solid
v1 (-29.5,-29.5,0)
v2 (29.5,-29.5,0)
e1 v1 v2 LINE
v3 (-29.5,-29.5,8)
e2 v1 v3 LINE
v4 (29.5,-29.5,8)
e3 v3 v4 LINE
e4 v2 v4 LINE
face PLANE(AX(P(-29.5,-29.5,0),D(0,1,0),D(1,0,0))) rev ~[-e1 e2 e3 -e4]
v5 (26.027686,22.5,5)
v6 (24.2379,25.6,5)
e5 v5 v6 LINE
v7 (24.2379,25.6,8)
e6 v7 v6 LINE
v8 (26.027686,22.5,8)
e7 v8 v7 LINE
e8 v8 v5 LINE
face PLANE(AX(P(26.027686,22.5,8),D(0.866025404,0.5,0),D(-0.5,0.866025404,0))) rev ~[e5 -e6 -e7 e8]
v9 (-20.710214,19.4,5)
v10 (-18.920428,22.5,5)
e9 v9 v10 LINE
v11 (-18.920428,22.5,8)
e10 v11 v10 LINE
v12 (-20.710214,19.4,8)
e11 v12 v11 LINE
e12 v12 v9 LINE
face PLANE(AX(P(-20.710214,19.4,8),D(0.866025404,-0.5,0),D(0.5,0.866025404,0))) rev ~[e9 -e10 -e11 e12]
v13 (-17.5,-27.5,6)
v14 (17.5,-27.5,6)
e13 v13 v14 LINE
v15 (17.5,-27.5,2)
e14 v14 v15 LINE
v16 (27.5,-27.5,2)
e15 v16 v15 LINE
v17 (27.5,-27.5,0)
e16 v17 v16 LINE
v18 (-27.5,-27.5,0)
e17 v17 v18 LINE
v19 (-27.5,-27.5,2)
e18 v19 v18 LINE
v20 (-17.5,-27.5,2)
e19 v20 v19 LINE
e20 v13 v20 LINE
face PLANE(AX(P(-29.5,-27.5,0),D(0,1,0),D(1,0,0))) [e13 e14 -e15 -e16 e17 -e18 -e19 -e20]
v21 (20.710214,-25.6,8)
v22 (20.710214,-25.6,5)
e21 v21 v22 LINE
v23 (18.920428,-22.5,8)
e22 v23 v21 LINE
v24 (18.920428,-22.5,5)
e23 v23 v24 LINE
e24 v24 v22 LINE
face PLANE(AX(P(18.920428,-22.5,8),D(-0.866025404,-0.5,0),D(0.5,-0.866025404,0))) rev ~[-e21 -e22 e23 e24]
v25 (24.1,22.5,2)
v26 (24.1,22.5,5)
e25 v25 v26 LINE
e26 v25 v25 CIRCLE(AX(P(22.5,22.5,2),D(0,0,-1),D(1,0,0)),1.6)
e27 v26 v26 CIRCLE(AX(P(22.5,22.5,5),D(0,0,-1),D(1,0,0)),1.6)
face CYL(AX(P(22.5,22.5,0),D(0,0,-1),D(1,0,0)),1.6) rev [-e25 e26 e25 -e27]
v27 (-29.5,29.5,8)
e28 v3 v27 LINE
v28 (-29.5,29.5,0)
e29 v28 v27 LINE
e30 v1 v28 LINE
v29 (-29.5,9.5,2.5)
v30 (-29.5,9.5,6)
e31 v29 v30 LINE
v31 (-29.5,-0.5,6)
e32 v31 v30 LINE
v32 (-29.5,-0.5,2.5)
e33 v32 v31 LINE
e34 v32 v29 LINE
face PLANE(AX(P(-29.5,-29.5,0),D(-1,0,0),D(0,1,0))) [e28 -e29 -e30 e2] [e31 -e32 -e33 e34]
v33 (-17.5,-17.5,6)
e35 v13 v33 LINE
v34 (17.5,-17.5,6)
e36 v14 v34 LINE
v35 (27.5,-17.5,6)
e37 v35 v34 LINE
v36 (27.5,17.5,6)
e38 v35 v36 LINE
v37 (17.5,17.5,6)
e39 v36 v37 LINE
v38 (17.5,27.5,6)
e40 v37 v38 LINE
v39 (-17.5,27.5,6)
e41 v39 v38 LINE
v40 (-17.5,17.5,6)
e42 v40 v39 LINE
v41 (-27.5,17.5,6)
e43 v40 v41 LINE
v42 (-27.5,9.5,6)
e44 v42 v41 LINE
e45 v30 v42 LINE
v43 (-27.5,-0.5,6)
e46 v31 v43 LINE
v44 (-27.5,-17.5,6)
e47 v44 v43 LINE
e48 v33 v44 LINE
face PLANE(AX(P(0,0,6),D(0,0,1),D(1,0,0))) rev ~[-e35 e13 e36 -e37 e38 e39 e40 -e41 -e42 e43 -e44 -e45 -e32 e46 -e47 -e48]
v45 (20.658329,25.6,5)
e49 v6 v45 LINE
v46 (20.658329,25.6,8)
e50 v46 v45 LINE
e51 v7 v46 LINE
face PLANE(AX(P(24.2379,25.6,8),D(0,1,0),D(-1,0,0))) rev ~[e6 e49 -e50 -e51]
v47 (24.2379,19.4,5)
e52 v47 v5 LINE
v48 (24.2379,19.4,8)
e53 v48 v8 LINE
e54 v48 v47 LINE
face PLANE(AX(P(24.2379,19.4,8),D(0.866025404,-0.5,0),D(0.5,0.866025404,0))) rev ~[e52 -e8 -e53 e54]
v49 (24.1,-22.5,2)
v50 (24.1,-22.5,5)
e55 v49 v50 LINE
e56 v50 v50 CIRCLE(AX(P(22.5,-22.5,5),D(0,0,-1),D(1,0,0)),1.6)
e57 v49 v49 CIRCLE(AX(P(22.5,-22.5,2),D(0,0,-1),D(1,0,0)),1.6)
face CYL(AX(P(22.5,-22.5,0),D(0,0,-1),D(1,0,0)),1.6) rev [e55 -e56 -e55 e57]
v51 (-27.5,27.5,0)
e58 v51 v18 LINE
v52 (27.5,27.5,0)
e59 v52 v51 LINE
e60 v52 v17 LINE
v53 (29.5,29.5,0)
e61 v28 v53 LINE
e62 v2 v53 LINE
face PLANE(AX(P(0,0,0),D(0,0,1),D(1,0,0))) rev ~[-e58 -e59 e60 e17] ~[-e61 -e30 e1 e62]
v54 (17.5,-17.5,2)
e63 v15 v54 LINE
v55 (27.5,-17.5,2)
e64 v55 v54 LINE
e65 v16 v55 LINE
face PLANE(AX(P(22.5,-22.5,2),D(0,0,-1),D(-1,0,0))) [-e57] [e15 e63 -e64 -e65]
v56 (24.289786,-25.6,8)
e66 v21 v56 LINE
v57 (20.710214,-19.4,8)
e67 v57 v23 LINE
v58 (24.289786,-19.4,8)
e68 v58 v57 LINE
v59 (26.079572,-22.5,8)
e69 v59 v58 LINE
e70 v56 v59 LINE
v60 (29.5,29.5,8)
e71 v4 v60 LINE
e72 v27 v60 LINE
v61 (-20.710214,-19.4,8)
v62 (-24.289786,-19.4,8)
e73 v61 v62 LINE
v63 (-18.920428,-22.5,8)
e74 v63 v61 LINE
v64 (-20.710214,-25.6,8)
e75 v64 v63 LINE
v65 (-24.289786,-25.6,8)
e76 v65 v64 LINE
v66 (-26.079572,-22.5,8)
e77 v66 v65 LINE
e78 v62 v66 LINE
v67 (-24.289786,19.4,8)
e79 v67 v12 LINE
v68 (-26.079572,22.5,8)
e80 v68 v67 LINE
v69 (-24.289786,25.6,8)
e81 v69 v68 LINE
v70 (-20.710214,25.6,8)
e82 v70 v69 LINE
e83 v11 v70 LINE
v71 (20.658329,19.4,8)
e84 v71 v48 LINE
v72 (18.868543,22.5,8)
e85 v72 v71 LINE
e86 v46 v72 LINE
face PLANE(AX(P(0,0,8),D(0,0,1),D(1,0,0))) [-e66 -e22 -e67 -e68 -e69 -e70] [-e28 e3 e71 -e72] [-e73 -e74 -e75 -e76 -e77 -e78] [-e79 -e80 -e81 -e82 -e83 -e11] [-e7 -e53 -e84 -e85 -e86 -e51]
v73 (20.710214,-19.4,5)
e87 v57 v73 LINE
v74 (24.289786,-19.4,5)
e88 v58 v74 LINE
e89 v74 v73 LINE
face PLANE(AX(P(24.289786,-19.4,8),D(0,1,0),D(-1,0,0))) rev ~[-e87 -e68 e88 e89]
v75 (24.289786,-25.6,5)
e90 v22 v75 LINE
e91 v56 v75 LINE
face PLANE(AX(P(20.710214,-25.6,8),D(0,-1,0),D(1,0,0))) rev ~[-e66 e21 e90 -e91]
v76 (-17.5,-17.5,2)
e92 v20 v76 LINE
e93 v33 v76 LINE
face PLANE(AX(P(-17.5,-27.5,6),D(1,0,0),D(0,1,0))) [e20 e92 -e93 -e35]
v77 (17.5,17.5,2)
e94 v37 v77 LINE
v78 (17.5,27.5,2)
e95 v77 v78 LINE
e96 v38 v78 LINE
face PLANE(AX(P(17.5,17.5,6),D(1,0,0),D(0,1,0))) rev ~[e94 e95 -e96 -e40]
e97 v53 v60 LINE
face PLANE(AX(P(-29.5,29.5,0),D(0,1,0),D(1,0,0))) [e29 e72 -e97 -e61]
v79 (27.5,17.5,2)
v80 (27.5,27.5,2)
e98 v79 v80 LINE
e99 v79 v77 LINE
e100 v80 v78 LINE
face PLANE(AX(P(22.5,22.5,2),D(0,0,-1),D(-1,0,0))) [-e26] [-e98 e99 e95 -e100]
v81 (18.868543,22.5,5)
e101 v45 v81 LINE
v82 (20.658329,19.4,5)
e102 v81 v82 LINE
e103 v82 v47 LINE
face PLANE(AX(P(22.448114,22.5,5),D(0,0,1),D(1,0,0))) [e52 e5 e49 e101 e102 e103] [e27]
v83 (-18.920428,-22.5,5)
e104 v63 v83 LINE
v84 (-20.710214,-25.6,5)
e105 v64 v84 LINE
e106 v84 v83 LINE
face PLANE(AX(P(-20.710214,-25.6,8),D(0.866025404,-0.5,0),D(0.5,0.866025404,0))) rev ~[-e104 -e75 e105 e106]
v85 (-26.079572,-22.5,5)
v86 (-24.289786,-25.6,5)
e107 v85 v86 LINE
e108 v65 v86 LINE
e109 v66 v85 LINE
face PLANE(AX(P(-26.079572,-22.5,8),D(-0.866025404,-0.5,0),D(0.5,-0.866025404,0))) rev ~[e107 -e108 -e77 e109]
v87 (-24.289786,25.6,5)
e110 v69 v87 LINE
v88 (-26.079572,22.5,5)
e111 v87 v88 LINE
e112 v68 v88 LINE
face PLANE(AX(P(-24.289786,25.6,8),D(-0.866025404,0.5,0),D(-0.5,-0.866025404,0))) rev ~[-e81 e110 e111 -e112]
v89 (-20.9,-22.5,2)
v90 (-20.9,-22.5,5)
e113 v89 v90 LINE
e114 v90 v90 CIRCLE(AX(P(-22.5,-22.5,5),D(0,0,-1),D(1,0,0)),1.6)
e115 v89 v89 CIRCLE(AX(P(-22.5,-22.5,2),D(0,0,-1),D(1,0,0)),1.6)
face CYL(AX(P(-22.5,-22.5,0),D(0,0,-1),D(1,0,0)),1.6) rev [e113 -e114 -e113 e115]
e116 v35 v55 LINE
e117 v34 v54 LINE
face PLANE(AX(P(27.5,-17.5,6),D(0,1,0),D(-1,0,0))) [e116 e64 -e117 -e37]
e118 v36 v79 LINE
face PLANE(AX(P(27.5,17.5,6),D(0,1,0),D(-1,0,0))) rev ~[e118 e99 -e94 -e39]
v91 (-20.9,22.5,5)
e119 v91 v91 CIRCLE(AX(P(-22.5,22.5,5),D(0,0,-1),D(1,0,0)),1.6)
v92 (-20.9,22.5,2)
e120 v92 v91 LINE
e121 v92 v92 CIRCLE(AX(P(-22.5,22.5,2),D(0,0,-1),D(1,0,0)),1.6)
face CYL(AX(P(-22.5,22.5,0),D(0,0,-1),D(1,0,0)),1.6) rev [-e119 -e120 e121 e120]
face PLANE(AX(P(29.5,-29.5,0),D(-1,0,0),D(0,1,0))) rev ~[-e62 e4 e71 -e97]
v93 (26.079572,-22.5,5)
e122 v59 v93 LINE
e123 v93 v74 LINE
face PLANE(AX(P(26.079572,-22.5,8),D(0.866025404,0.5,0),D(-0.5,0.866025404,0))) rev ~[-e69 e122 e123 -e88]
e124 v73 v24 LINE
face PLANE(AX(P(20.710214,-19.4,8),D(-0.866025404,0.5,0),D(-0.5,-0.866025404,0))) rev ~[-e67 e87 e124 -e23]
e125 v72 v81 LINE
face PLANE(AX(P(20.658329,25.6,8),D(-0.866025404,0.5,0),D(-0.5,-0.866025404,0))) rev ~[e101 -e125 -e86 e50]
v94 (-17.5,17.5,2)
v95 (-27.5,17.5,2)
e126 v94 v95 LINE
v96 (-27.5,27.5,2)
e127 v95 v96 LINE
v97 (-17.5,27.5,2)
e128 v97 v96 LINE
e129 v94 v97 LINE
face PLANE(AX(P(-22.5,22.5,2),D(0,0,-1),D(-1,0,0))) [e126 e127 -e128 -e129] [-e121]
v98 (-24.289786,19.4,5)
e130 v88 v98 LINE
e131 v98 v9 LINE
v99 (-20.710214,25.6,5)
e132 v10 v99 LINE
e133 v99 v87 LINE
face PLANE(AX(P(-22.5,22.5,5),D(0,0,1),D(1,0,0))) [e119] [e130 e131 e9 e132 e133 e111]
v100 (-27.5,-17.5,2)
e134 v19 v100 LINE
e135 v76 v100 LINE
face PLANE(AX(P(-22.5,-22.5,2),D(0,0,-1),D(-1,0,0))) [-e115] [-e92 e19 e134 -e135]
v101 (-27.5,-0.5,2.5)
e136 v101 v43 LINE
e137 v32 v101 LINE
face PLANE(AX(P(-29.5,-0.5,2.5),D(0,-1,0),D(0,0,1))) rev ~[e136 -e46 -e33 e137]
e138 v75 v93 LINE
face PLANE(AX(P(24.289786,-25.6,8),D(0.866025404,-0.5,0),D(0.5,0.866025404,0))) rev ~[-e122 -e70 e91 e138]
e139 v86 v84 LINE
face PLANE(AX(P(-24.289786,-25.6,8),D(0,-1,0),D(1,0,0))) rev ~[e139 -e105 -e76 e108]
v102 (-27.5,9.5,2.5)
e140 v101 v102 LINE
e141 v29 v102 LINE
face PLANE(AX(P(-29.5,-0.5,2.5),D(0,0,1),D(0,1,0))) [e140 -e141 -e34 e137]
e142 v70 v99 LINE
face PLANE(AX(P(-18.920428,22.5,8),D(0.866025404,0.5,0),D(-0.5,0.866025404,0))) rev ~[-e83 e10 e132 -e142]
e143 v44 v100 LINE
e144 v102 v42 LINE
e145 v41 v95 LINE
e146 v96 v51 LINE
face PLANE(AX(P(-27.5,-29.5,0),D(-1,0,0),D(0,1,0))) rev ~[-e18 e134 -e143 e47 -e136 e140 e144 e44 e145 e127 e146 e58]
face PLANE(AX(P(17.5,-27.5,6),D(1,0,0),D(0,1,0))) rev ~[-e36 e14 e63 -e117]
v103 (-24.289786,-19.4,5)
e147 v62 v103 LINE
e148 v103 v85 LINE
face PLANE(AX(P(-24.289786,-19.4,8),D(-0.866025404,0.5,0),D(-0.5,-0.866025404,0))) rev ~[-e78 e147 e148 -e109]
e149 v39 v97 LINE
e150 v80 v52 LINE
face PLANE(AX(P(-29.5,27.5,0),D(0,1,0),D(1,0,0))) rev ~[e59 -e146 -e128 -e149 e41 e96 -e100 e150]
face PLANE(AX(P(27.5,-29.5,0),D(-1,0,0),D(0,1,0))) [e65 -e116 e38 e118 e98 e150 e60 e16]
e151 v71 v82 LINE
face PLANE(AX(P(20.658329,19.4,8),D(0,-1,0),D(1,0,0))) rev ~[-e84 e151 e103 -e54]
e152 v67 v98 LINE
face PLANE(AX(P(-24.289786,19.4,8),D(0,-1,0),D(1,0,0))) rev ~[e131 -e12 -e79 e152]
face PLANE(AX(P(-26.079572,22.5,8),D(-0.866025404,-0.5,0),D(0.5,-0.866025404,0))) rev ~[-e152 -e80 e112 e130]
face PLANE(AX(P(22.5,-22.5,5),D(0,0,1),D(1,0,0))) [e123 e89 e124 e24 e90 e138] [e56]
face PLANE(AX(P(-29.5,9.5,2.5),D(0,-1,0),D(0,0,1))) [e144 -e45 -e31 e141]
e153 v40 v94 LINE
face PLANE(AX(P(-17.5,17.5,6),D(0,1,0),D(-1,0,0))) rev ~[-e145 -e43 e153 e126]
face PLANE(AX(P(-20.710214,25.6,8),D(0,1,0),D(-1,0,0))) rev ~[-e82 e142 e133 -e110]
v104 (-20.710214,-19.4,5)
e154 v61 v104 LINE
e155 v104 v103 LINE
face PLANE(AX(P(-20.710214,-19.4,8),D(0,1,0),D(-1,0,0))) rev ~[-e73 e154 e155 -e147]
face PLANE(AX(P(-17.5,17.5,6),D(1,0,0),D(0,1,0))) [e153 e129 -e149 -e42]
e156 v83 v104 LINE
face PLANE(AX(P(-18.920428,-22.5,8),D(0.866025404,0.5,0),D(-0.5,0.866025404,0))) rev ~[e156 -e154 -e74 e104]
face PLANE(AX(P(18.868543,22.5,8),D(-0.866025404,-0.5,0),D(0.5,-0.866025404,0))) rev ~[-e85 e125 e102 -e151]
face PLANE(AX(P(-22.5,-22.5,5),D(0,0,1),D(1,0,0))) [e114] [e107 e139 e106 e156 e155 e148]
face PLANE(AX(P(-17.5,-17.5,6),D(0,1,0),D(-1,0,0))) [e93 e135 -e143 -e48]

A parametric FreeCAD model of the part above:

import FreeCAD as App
import Part
import Sketcher

V = App.Vector
Q = App.Units.Quantity


def faces_at(feature, points):
    """Names of the faces that lie closest to the given points."""
    faces = feature.Shape.Faces
    near = lambda p: min(range(len(faces)), key=lambda i: faces[i].distToShape(Part.Vertex(*p))[0])
    return sorted({f"Face{near(p) + 1}" for p in points})


def add_polygon(sketch, points):
    """Adds a closed chain of lines whose ends are joined by coincident constraints."""
    first, n = sketch.GeometryCount, len(points)
    for a, b in zip(points, points[1:] + points[:1]):
        sketch.addGeometry(Part.LineSegment(App.Vector(*a, 0), App.Vector(*b, 0)), False)
    for i in range(n):
        sketch.addConstraint(Sketcher.Constraint("Coincident", first + i, 2, first + (i + 1) % n, 1))

doc = App.newDocument("Part")
body = doc.addObject("PartDesign::Body", "Body")

# Sketch on XY plane
sketch1 = body.newObject("Sketcher::SketchObject", "Sketch")
sketch1.AttachmentSupport = (doc.getObject("XY_Plane"), [""])
sketch1.MapMode = "FlatFace"
add_polygon(sketch1, [(-30, 30), (-30, -30), (30, -30), (30, 30)])  # lines 0-3
sketch1.addConstraint([
    Sketcher.Constraint("Vertical", 0),
    Sketcher.Constraint("Horizontal", 1),
    Sketcher.Constraint("Vertical", 2),
    Sketcher.Constraint("Horizontal", 3),
    Sketcher.Constraint("Symmetric", 0, 2, 2, 2, -1, 1),
    Sketcher.Constraint("Equal", 3, 0),
    Sketcher.Constraint("DistanceX", 1, 1, 1, 2, 59.0),
])
pad1 = body.newObject("PartDesign::Pad", "Pad")
pad1.Profile = sketch1
pad1.Length = 8
doc.recompute()

thickness = body.newObject("PartDesign::Thickness", "Thickness")
thickness.Base = (pad1, faces_at(pad1, [(0, 0, 0)]))
thickness.Value = 2
thickness.Reversed = True
thickness.Join = "Intersection"

# Sketch on XY plane
sketch2 = body.newObject("Sketcher::SketchObject", "Sketch001")
sketch2.AttachmentSupport = (doc.getObject("XY_Plane"), [""])
sketch2.MapMode = "FlatFace"
sketch2.AttachmentOffset = App.Placement(V(0, 0, 6), App.Rotation())
add_polygon(sketch2, [(28, 28), (28, 18), (18, 18), (18, 28)])  # lines 0-3
add_polygon(sketch2, [(-18, 28), (-18, 18), (-28, 18), (-28, 28)])  # lines 4-7
add_polygon(sketch2, [(28, -18), (28, -28), (18, -28), (18, -18)])  # lines 8-11
add_polygon(sketch2, [(-18, -18), (-18, -28), (-28, -28), (-28, -18)])  # lines 12-15
sketch2.addConstraint([
    Sketcher.Constraint("Vertical", 0),
    Sketcher.Constraint("Horizontal", 1),
    Sketcher.Constraint("Vertical", 2),
    Sketcher.Constraint("Horizontal", 3),
    Sketcher.Constraint("Vertical", 4),
    Sketcher.Constraint("Horizontal", 5),
    Sketcher.Constraint("Vertical", 6),
    Sketcher.Constraint("Horizontal", 7),
    Sketcher.Constraint("Vertical", 8),
    Sketcher.Constraint("Horizontal", 9),
    Sketcher.Constraint("Vertical", 10),
    Sketcher.Constraint("Horizontal", 11),
    Sketcher.Constraint("Vertical", 12),
    Sketcher.Constraint("Horizontal", 13),
    Sketcher.Constraint("Vertical", 14),
    Sketcher.Constraint("Horizontal", 15),
    Sketcher.Constraint("Symmetric", 6, 2, 8, 2, -1, 1),
    Sketcher.Constraint("Symmetric", 4, 2, 10, 2, -1, 1),
    Sketcher.Constraint("Symmetric", 2, 2, 12, 2, -1, 1),
    Sketcher.Constraint("Symmetric", 0, 2, 14, 2, -1, 1),
    Sketcher.Constraint("Symmetric", 1, 2, 4, 2, -2),
    Sketcher.Constraint("Symmetric", 3, 2, 6, 2, -2),
    Sketcher.Constraint("Equal", 15, 0),
    Sketcher.Constraint("DistanceX", 1, 2, 1, 1, 10.0),
    Sketcher.Constraint("DistanceX", 4, 2, 1, 2, 35.0),
    Sketcher.Constraint("DistanceY", 8, 2, 0, 2, 45.0),
])
pad2 = body.newObject("PartDesign::Pad", "Pad001")
pad2.Profile = sketch2
pad2.Length = 4
pad2.Reversed = True

# Sketch on XY plane
sketch3 = body.newObject("Sketcher::SketchObject", "Sketch002")
sketch3.AttachmentSupport = (doc.getObject("XY_Plane"), [""])
sketch3.MapMode = "FlatFace"
sketch3.addGeometry([
    Part.Circle(V(22.5, 22.5, 0), V(0, 0, 1), 1.6),
    Part.Circle(V(-22.5, 22.5, 0), V(0, 0, 1), 1.6),
    Part.Circle(V(-22.5, -22.5, 0), V(0, 0, 1), 1.6),
    Part.Circle(V(22.5, -22.5, 0), V(0, 0, 1), 1.6),
], False)
sketch3.addConstraint([
    Sketcher.Constraint("Equal", 0, 1),
    Sketcher.Constraint("Equal", 1, 2),
    Sketcher.Constraint("Equal", 2, 3),
    Sketcher.Constraint("Symmetric", 0, 3, 2, 3, -1, 1),
    Sketcher.Constraint("Symmetric", 1, 3, 3, 3, -1, 1),
    Sketcher.Constraint("Symmetric", 0, 3, 1, 3, -2),
    Sketcher.Constraint("Diameter", 0, 3.2),
    Sketcher.Constraint("DistanceX", 1, 3, 0, 3, 45.0),
    Sketcher.Constraint("DistanceY", 2, 3, 1, 3, 45.0),
])
pocket1 = body.newObject("PartDesign::Pocket", "Pocket")
pocket1.Profile = sketch3
pocket1.Length = 10
pocket1.Reversed = True

# Sketch on YZ plane
sketch4 = body.newObject("Sketcher::SketchObject", "Sketch003")
sketch4.AttachmentSupport = (doc.getObject("YZ_Plane"), [""])
sketch4.MapMode = "FlatFace"
sketch4.AttachmentOffset = App.Placement(V(0, 0, -29.5), App.Rotation())
add_polygon(sketch4, [(9.5, 2.5), (-0.5, 2.5), (-0.5, 6), (9.5, 6)])  # lines 0-3
sketch4.addConstraint([
    Sketcher.Constraint("Horizontal", 0),
    Sketcher.Constraint("Vertical", 1),
    Sketcher.Constraint("Horizontal", 2),
    Sketcher.Constraint("Vertical", 3),
    Sketcher.Constraint("DistanceX", 0, 2, 0, 1, 10.0),
    Sketcher.Constraint("DistanceY", 1, 1, 1, 2, 3.5),
    Sketcher.Constraint("DistanceY", -1, 1, 1, 2, 6.0),
    Sketcher.Constraint("DistanceX", 0, 2, -1, 1, 0.5),
])
pocket2 = body.newObject("PartDesign::Pocket", "Pocket001")
pocket2.Profile = sketch4
pocket2.Length = 2
pocket2.Reversed = True

# Sketch on XY plane
sketch5 = body.newObject("Sketcher::SketchObject", "Sketch004")
sketch5.AttachmentSupport = (doc.getObject("XY_Plane"), [""])
sketch5.MapMode = "FlatFace"
sketch5.AttachmentOffset = App.Placement(V(0, 0, 8), App.Rotation())
add_polygon(sketch5, [(-20.7, 25.6), (-24.3, 25.6), (-26.1, 22.5), (-24.3, 19.4), (-20.7, 19.4), (-18.9, 22.5)])  # lines 0-5
add_polygon(sketch5, [(24.2, 25.6), (20.7, 25.6), (18.9, 22.5), (20.7, 19.4), (24.2, 19.4), (26, 22.5)])  # lines 6-11
add_polygon(sketch5, [(-18.9, -22.5), (-20.7, -19.4), (-24.3, -19.4), (-26.1, -22.5), (-24.3, -25.6), (-20.7, -25.6)])  # lines 12-17
add_polygon(sketch5, [(24.3, -19.4), (20.7, -19.4), (18.9, -22.5), (20.7, -25.6), (24.3, -25.6), (26.1, -22.5)])  # lines 18-23
sketch5.addConstraint([
    Sketcher.Constraint("Horizontal", 0),
    Sketcher.Constraint("Horizontal", 3),
    Sketcher.Constraint("Horizontal", 6),
    Sketcher.Constraint("Horizontal", 9),
    Sketcher.Constraint("Horizontal", 13),
    Sketcher.Constraint("Horizontal", 16),
    Sketcher.Constraint("Horizontal", 18),
    Sketcher.Constraint("Horizontal", 21),
    Sketcher.Constraint("Symmetric", 3, 2, 18, 2, -1, 1),
    Sketcher.Constraint("Symmetric", 4, 2, 19, 2, -1, 1),
    Sketcher.Constraint("Symmetric", 5, 2, 20, 2, -1, 1),
    Sketcher.Constraint("Symmetric", 1, 2, 22, 2, -1, 1),
    Sketcher.Constraint("Symmetric", 12, 2, 18, 2, -2),
    Sketcher.Constraint("Symmetric", 17, 2, 19, 2, -2),
    Sketcher.Constraint("Symmetric", 16, 2, 20, 2, -2),
    Sketcher.Constraint("Symmetric", 14, 2, 22, 2, -2),
    Sketcher.Constraint("Parallel", 1, 4),
    Sketcher.Constraint("Parallel", 2, 5),
    Sketcher.Constraint("Parallel", 4, 7),
    Sketcher.Constraint("Parallel", 5, 8),
    Sketcher.Constraint("Parallel", 7, 10),
    Sketcher.Constraint("Parallel", 8, 11),
    Sketcher.Constraint("Parallel", 11, 12),
    Sketcher.Constraint("Parallel", 10, 14),
    Sketcher.Constraint("Parallel", 12, 15),
    Sketcher.Constraint("Parallel", 19, 22),
    Sketcher.Constraint("Parallel", 20, 23),
    Sketcher.Constraint("Horizontal", 1, 2, 4, 2),
    Sketcher.Constraint("Horizontal", 5, 2, 6, 2),
    Sketcher.Constraint("Horizontal", 4, 2, 7, 2),
    Sketcher.Constraint("Horizontal", 3, 2, 8, 2),
    Sketcher.Constraint("Horizontal", 7, 2, 10, 2),
    Sketcher.Constraint("Vertical", 0, 2, 2, 2),
    Sketcher.Constraint("Equal", 3, 6),
    Sketcher.Constraint("Angle", 1, Q("-120 deg")),
    Sketcher.Constraint("DistanceY", 12, 2, 5, 2, 45.0),
    Sketcher.Constraint("DistanceX", 16, 2, 21, 2, 45.0),
    Sketcher.Constraint("DistanceY", -1, 1, 0, 2, 25.6),
    Sketcher.Constraint("DistanceX", 0, 2, 0, 1, 3.579572),
    Sketcher.Constraint("DistanceX", -1, 1, 9, 2, 24.2379),
])
pocket3 = body.newObject("PartDesign::Pocket", "Pocket002")
pocket3.Profile = sketch5
pocket3.Length = 3

doc.recompute()
